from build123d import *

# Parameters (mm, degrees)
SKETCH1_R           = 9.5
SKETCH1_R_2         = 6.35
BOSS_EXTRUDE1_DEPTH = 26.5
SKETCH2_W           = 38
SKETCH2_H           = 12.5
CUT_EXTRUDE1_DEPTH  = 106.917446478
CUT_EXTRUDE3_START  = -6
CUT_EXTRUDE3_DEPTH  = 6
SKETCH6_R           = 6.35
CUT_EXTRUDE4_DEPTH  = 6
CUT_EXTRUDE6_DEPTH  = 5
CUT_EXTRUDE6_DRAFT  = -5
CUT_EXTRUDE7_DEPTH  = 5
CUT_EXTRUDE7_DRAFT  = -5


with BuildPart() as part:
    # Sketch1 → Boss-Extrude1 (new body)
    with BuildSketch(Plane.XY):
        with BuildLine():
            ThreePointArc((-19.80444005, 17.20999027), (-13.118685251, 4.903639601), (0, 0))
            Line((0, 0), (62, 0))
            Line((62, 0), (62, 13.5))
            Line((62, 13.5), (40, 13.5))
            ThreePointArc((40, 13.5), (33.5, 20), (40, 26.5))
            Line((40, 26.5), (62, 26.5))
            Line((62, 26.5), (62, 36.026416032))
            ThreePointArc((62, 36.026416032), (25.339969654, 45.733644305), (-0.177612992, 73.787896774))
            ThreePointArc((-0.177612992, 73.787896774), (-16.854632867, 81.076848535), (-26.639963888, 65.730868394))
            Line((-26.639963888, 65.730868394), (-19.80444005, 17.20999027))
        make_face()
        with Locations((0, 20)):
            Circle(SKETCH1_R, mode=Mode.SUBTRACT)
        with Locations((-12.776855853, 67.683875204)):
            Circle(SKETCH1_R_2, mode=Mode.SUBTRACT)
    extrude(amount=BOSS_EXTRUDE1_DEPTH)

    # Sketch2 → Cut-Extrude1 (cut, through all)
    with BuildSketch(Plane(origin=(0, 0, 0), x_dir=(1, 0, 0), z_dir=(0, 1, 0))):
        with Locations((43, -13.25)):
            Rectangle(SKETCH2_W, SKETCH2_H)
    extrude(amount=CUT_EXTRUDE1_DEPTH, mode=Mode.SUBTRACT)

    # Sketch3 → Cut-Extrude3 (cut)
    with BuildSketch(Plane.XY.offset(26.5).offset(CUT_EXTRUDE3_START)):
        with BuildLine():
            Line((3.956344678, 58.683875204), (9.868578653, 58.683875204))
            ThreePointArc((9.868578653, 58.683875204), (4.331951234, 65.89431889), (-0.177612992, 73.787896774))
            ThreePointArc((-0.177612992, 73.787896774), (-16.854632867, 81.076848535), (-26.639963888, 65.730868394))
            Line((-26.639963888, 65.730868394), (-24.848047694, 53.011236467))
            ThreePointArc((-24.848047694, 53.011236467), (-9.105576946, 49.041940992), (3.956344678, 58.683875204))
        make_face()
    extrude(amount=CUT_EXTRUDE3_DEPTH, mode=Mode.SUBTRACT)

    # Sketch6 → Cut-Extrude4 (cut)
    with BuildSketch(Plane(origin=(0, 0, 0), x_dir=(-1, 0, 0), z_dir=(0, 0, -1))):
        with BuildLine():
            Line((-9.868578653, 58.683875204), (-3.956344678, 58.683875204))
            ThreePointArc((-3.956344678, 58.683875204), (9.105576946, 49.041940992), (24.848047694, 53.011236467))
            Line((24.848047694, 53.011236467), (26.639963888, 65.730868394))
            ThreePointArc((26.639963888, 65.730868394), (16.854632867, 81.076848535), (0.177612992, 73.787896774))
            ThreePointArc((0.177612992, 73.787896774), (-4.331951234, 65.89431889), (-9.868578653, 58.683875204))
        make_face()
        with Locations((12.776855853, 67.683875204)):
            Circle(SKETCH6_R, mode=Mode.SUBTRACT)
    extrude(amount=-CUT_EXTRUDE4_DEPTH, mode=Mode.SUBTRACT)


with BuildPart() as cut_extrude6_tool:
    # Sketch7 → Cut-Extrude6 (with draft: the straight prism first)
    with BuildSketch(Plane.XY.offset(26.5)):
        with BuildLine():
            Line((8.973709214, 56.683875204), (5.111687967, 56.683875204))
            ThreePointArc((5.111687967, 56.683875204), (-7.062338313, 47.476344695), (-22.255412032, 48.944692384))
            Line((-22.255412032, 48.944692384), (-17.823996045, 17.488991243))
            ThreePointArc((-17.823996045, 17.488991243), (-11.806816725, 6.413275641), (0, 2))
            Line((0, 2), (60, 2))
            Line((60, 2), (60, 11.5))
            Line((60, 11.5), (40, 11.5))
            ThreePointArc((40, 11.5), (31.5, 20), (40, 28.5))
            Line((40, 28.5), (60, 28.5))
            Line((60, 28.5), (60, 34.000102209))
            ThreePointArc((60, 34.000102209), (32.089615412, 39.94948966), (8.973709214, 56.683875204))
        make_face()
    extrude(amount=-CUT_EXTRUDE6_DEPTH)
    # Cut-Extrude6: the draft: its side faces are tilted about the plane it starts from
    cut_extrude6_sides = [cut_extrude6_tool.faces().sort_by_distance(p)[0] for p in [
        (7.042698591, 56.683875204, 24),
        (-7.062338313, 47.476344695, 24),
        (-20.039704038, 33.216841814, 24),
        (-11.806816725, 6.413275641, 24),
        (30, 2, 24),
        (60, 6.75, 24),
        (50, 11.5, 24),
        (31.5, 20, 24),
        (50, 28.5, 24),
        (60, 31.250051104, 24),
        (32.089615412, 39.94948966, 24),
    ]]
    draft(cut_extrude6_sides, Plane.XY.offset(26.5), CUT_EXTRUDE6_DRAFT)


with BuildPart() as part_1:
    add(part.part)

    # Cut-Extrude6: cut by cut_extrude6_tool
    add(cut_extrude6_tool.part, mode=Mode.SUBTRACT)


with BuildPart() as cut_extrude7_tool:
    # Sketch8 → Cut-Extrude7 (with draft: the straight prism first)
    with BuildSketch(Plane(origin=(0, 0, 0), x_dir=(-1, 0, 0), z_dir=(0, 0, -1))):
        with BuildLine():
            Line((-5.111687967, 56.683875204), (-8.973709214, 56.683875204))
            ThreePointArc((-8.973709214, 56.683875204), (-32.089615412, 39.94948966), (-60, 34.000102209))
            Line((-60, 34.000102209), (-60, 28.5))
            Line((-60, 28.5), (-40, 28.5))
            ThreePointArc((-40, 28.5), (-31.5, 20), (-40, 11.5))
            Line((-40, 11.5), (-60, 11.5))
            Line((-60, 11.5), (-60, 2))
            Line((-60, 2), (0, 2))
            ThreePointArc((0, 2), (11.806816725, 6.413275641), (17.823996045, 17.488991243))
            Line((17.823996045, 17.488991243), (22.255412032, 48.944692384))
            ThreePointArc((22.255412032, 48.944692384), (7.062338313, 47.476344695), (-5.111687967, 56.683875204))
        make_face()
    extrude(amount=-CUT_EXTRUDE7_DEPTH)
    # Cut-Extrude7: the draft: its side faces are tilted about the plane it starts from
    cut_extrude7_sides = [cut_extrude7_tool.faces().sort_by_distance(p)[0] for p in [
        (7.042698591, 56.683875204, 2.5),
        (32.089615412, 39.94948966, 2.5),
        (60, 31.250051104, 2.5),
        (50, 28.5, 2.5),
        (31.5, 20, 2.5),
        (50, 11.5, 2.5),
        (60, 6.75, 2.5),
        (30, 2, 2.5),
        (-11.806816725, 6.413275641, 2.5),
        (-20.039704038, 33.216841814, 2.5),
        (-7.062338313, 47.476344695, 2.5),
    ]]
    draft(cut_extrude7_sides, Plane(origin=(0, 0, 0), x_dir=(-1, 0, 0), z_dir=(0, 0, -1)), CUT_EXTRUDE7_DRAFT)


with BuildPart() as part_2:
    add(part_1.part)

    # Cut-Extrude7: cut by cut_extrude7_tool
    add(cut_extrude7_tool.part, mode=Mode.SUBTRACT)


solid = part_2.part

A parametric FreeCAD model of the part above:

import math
import FreeCAD as App
import Part
import Sketcher
from FreeCAD import Vector
Q = App.Units.Quantity


def faces_at(feature, points):
    """Names of the faces that lie closest to the given points."""
    faces = feature.Shape.Faces
    near = lambda p: min(range(len(faces)), key=lambda i: faces[i].distToShape(Part.Vertex(*p))[0])
    return sorted({f"Face{near(p) + 1}" for p in points})

doc = App.newDocument("Part")
params = doc.addObject("Spreadsheet::Sheet", "Params")
for row, (alias, value) in enumerate([
    ("sketch1_diameter", "19 mm"),
    ("sketch1_radius", "20 mm"),
    ("sketch1_radius2", "67 mm"),
    ("sketch1_radius3", "14 mm"),
    ("sketch1_diameter2", "12.7 mm"),
    ("pad1_length", "26.5 mm"),
    ("sketch2_width", "38 mm"),
    ("sketch2_height", "12.5 mm"),
    ("sketch3_radius", "67 mm"),
    ("sketch3_radius2", "14 mm"),
    ("sketch3_radius3", "19 mm"),
    ("pocket2_length", "6 mm"),
    ("sketch4_radius", "19 mm"),
    ("sketch4_radius2", "14 mm"),
    ("sketch4_radius3", "67 mm"),
    ("sketch4_diameter", "12.7 mm"),
    ("pocket3_length", "6 mm"),
    ("sketch5_radius", "21 mm"),
    ("sketch5_radius2", "18 mm"),
    ("sketch5_radius3", "69 mm"),
    ("sketch5_radius4", "8.5 mm"),
    ("sketch5_width", "60 mm"),
    ("pad2_length", "5 mm"),
    ("draft_angle", "5 deg"),
    ("sketch6_radius", "69 mm"),
    ("sketch6_radius2", "18 mm"),
    ("sketch6_radius3", "21 mm"),
    ("sketch6_radius4", "8.5 mm"),
    ("sketch6_width", "20 mm"),
    ("pad3_length", "5 mm"),
    ("draft2_angle", "5 deg"),
], start=1):
    params.set(f"A{row}", alias)
    params.set(f"B{row}", "=" + value)
    params.setAlias(f"B{row}", alias)

body = doc.addObject("PartDesign::Body", "Body")

# Sketch on XY plane
sketch1 = doc.addObject("Sketcher::SketchObject", "Sketch")
body.addObject(sketch1)
sketch1.AttachmentSupport = (doc.XY_Plane, [""])
sketch1.MapMode = "FlatFace"
sketch1.addGeometry(Part.ArcOfCircle(Part.Circle(Vector(0, 20, 0), Vector(0, 0, 1), 20), math.radians(-172), math.radians(-90)), False)
sketch1.addGeometry(Part.LineSegment(Vector(0, 0, 0), Vector(62, 0, 0)), False)
sketch1.addGeometry(Part.LineSegment(Vector(62, 0, 0), Vector(62, 14, 0)), False)
sketch1.addGeometry(Part.LineSegment(Vector(62, 14, 0), Vector(40, 14, 0)), False)
sketch1.addGeometry(Part.ArcOfCircle(Part.Circle(Vector(40, 20, 0), Vector(0, 0, 1), 6), math.radians(90), math.radians(270)), False)
sketch1.addGeometry(Part.LineSegment(Vector(40, 26, 0), Vector(62, 26, 0)), False)
sketch1.addGeometry(Part.LineSegment(Vector(62, 26, 0), Vector(62, 36, 0)), False)
sketch1.addGeometry(Part.ArcOfCircle(Part.Circle(Vector(60, 103, 0), Vector(0, 0, 1), 67), math.radians(-154), math.radians(-88)), False)
sketch1.addGeometry(Part.ArcOfCircle(Part.Circle(Vector(-13, 68, 0), Vector(0, 0, 1), 14), math.radians(26), math.radians(188)), False)
sketch1.addGeometry(Part.LineSegment(Vector(-27, 66, 0), Vector(-20, 17, 0)), False)
sketch1.addGeometry(Part.Circle(Vector(0, 20, 0), Vector(0, 0, 1), 10), False)
sketch1.addGeometry(Part.Circle(Vector(-13, 68, 0), Vector(0, 0, 1), 6), False)
sketch1.addConstraint(Sketcher.Constraint("Tangent", 0, 2, 1, 1))
sketch1.addConstraint(Sketcher.Constraint("Coincident", 1, 2, 2, 1))
sketch1.addConstraint(Sketcher.Constraint("Coincident", 2, 2, 3, 1))
sketch1.addConstraint(Sketcher.Constraint("Tangent", 3, 2, 4, 2))
sketch1.addConstraint(Sketcher.Constraint("Tangent", 4, 1, 5, 1))
sketch1.addConstraint(Sketcher.Constraint("Coincident", 5, 2, 6, 1))
sketch1.addConstraint(Sketcher.Constraint("Coincident", 6, 2, 7, 2))
sketch1.addConstraint(Sketcher.Constraint("Tangent", 7, 1, 8, 1))
sketch1.addConstraint(Sketcher.Constraint("Tangent", 8, 2, 9, 1))
sketch1.addConstraint(Sketcher.Constraint("Tangent", 9, 2, 0, 1))
sketch1.addConstraint(Sketcher.Constraint("Horizontal", 1))
sketch1.addConstraint(Sketcher.Constraint("Vertical", 2))
sketch1.addConstraint(Sketcher.Constraint("Horizontal", 3))
sketch1.addConstraint(Sketcher.Constraint("Horizontal", 5))
sketch1.addConstraint(Sketcher.Constraint("Vertical", 6))
sketch1.addConstraint(Sketcher.Constraint("Coincident", 0, 2, -1, 1))
sketch1.addConstraint(Sketcher.Constraint("Coincident", 10, 3, 0, 3))
sketch1.addConstraint(Sketcher.Constraint("Coincident", 11, 3, 8, 3))
sketch1.addConstraint(Sketcher.Constraint("Horizontal", 0, 3, 4, 3))
sketch1.addConstraint(Sketcher.Constraint("Vertical", 2, 2, 5, 2))
sketch1.addConstraint(Sketcher.Constraint("Diameter", 10, Q("19 mm")))
sketch1.addConstraint(Sketcher.Constraint("Radius", 0, Q("20 mm")))
sketch1.addConstraint(Sketcher.Constraint("Radius", 7, Q("67 mm")))
sketch1.addConstraint(Sketcher.Constraint("Radius", 8, Q("14 mm")))
sketch1.addConstraint(Sketcher.Constraint("Diameter", 11, Q("12.7 mm")))
sketch1.addConstraint(Sketcher.Constraint("Radius", 4, Q("6.5 mm")))
sketch1.addConstraint(Sketcher.Constraint("DistanceX", 1, 1, 1, 2, Q("62 mm")))
sketch1.addConstraint(Sketcher.Constraint("DistanceX", 3, 2, 3, 1, Q("22 mm")))
sketch1.addConstraint(Sketcher.Constraint("Distance", 9, Q("49 mm")))
sketch1.addConstraint(Sketcher.Constraint("DistanceY", -1, 1, 7, 3, Q("103 mm")))
sketch1.addConstraint(Sketcher.Constraint("DistanceY", 6, 1, 6, 2, Q("9.526416 mm")))
sketch1.setExpression("Constraints[20]", "Params.sketch1_diameter")
sketch1.setExpression("Constraints[21]", "Params.sketch1_radius")
sketch1.setExpression("Constraints[22]", "Params.sketch1_radius2")
sketch1.setExpression("Constraints[23]", "Params.sketch1_radius3")
sketch1.setExpression("Constraints[24]", "Params.sketch1_diameter2")
pad1 = doc.addObject("PartDesign::Pad", "Pad")
body.addObject(pad1)
pad1.Profile = sketch1
pad1.setExpression("Length", "Params.pad1_length")

# Sketch on XZ plane
sketch2 = doc.addObject("Sketcher::SketchObject", "Sketch001")
body.addObject(sketch2)
sketch2.AttachmentSupport = (doc.XZ_Plane, [""])
sketch2.MapMode = "FlatFace"
sketch2.addGeometry(Part.LineSegment(Vector(24, 7, 0), Vector(24, 20, 0)), False)
sketch2.addGeometry(Part.LineSegment(Vector(24, 20, 0), Vector(62, 20, 0)), False)
sketch2.addGeometry(Part.LineSegment(Vector(62, 20, 0), Vector(62, 7, 0)), False)
sketch2.addGeometry(Part.LineSegment(Vector(62, 7, 0), Vector(24, 7, 0)), False)
sketch2.addConstraint(Sketcher.Constraint("Coincident", 0, 2, 1, 1))
sketch2.addConstraint(Sketcher.Constraint("Coincident", 1, 2, 2, 1))
sketch2.addConstraint(Sketcher.Constraint("Coincident", 2, 2, 3, 1))
sketch2.addConstraint(Sketcher.Constraint("Coincident", 3, 2, 0, 1))
sketch2.addConstraint(Sketcher.Constraint("Vertical", 0))
sketch2.addConstraint(Sketcher.Constraint("Horizontal", 1))
sketch2.addConstraint(Sketcher.Constraint("Vertical", 2))
sketch2.addConstraint(Sketcher.Constraint("Horizontal", 3))
sketch2.addConstraint(Sketcher.Constraint("DistanceX", 1, 1, 1, 2, Q("38 mm")))
sketch2.addConstraint(Sketcher.Constraint("DistanceY", 0, 1, 0, 2, Q("12.5 mm")))
sketch2.addConstraint(Sketcher.Constraint("DistanceX", -1, 1, 0, 2, Q("24 mm")))
sketch2.addConstraint(Sketcher.Constraint("DistanceY", -1, 1, 2, 2, Q("7 mm")))
sketch2.setExpression("Constraints[8]", "Params.sketch2_width")
sketch2.setExpression("Constraints[9]", "Params.sketch2_height")
pocket1 = doc.addObject("PartDesign::Pocket", "Pocket")
body.addObject(pocket1)
pocket1.Profile = sketch2
pocket1.Type = "ThroughAll"

# Sketch on XY plane
sketch3 = doc.addObject("Sketcher::SketchObject", "Sketch002")
body.addObject(sketch3)
sketch3.AttachmentSupport = (doc.XY_Plane, [""])
sketch3.MapMode = "FlatFace"
sketch3.AttachmentOffset = App.Placement(Vector(0, 0, 20.5), App.Rotation())
sketch3.addGeometry(Part.LineSegment(Vector(4, 59, 0), Vector(10, 59, 0)), False)
sketch3.addGeometry(Part.ArcOfCircle(Part.Circle(Vector(60, 103, 0), Vector(0, 0, 1), 67), math.radians(-154.15), math.radians(-138.59)), False)
sketch3.addGeometry(Part.ArcOfCircle(Part.Circle(Vector(-13, 68, 0), Vector(0, 0, 1), 14), math.radians(26), math.radians(188)), False)
sketch3.addGeometry(Part.LineSegment(Vector(-27, 66, 0), Vector(-25, 53, 0)), False)
sketch3.addGeometry(Part.ArcOfCircle(Part.Circle(Vector(-13, 68, 0), Vector(0, 0, 1), 19), math.radians(-129), math.radians(-28)), False)
sketch3.addConstraint(Sketcher.Constraint("Coincident", 0, 2, 1, 2))
sketch3.addConstraint(Sketcher.Constraint("Tangent", 1, 1, 2, 1))
sketch3.addConstraint(Sketcher.Constraint("Tangent", 2, 2, 3, 1))
sketch3.addConstraint(Sketcher.Constraint("Coincident", 3, 2, 4, 1))
sketch3.addConstraint(Sketcher.Constraint("Coincident", 4, 2, 0, 1))
sketch3.addConstraint(Sketcher.Constraint("Horizontal", 0))
sketch3.addConstraint(Sketcher.Constraint("Coincident", 4, 3, 2, 3))
sketch3.addConstraint(Sketcher.Constraint("Radius", 1, Q("67 mm")))
sketch3.addConstraint(Sketcher.Constraint("Radius", 2, Q("14 mm")))
sketch3.addConstraint(Sketcher.Constraint("Radius", 4, Q("19 mm")))
sketch3.addConstraint(Sketcher.Constraint("DistanceY", -1, 1, 1, 3, Q("103 mm")))
sketch3.addConstraint(Sketcher.Constraint("DistanceY", 0, 2, 4, 3, Q("9 mm")))
sketch3.addConstraint(Sketcher.Constraint("DistanceX", 0, 1, 0, 2, Q("5.912234 mm")))
sketch3.addConstraint(Sketcher.Constraint("DistanceX", -1, 1, 0, 2, Q("9.868579 mm")))
sketch3.addConstraint(Sketcher.Constraint("DistanceY", -1, 1, 2, 2, Q("65.730868 mm")))
sketch3.setExpression("Constraints[7]", "Params.sketch3_radius")
sketch3.setExpression("Constraints[8]", "Params.sketch3_radius2")
sketch3.setExpression("Constraints[9]", "Params.sketch3_radius3")
pocket2 = doc.addObject("PartDesign::Pocket", "Pocket001")
body.addObject(pocket2)
pocket2.Profile = sketch3
pocket2.setExpression("Length", "Params.pocket2_length")
pocket2.Reversed = True

# Sketch on XY plane
sketch4 = doc.addObject("Sketcher::SketchObject", "Sketch003")
body.addObject(sketch4)
sketch4.AttachmentSupport = (doc.XY_Plane, [""])
sketch4.MapMode = "FlatFace"
sketch4.addGeometry(Part.LineSegment(Vector(10, 59, 0), Vector(4, 59, 0)), False)
sketch4.addGeometry(Part.ArcOfCircle(Part.Circle(Vector(-13, 68, 0), Vector(0, 0, 1), 19), math.radians(-129), math.radians(-28)), False)
sketch4.addGeometry(Part.LineSegment(Vector(-25, 53, 0), Vector(-27, 66, 0)), False)
sketch4.addGeometry(Part.ArcOfCircle(Part.Circle(Vector(-13, 68, 0), Vector(0, 0, 1), 14), math.radians(26), math.radians(188)), False)
sketch4.addGeometry(Part.ArcOfCircle(Part.Circle(Vector(60, 103, 0), Vector(0, 0, 1), 67), math.radians(-154.15), math.radians(-138.59)), False)
sketch4.addGeometry(Part.Circle(Vector(-13, 68, 0), Vector(0, 0, 1), 6), False)
sketch4.addConstraint(Sketcher.Constraint("Coincident", 0, 2, 1, 2))
sketch4.addConstraint(Sketcher.Constraint("Coincident", 1, 1, 2, 1))
sketch4.addConstraint(Sketcher.Constraint("Tangent", 2, 2, 3, 2))
sketch4.addConstraint(Sketcher.Constraint("Tangent", 3, 1, 4, 1))
sketch4.addConstraint(Sketcher.Constraint("Coincident", 4, 2, 0, 1))
sketch4.addConstraint(Sketcher.Constraint("Horizontal", 0))
sketch4.addConstraint(Sketcher.Constraint("Coincident", 3, 3, 1, 3))
sketch4.addConstraint(Sketcher.Constraint("Coincident", 5, 3, 1, 3))
sketch4.addConstraint(Sketcher.Constraint("Radius", 1, Q("19 mm")))
sketch4.addConstraint(Sketcher.Constraint("Radius", 3, Q("14 mm")))
sketch4.addConstraint(Sketcher.Constraint("Radius", 4, Q("67 mm")))
sketch4.addConstraint(Sketcher.Constraint("Diameter", 5, Q("12.7 mm")))
sketch4.addConstraint(Sketcher.Constraint("DistanceY", -1, 1, 4, 3, Q("103 mm")))
sketch4.addConstraint(Sketcher.Constraint("DistanceY", 0, 2, 1, 3, Q("9 mm")))
sketch4.addConstraint(Sketcher.Constraint("DistanceX", 0, 2, 0, 1, Q("5.912234 mm")))
sketch4.addConstraint(Sketcher.Constraint("DistanceY", -1, 1, 2, 2, Q("65.730868 mm")))
sketch4.addConstraint(Sketcher.Constraint("DistanceX", -1, 1, 4, 2, Q("9.868579 mm")))
sketch4.setExpression("Constraints[8]", "Params.sketch4_radius")
sketch4.setExpression("Constraints[9]", "Params.sketch4_radius2")
sketch4.setExpression("Constraints[10]", "Params.sketch4_radius3")
sketch4.setExpression("Constraints[11]", "Params.sketch4_diameter")
pocket3 = doc.addObject("PartDesign::Pocket", "Pocket002")
body.addObject(pocket3)
pocket3.Profile = sketch4
pocket3.setExpression("Length", "Params.pocket3_length")
pocket3.Reversed = True
body2 = doc.addObject("PartDesign::Body", "Body001")

# Sketch on XY plane
sketch5 = doc.addObject("Sketcher::SketchObject", "Sketch004")
body2.addObject(sketch5)
sketch5.AttachmentSupport = (doc.getObject("XY_Plane001"), [""])
sketch5.MapMode = "FlatFace"
sketch5.AttachmentOffset = App.Placement(Vector(0, 0, 26.5), App.Rotation())
sketch5.addGeometry(Part.LineSegment(Vector(9, 56.7, 0), Vector(5.1, 56.7, 0)), False)
sketch5.addGeometry(Part.ArcOfCircle(Part.Circle(Vector(-12.8, 67.7, 0), Vector(0, 0, 1), 21), math.radians(-117), math.radians(-32)), False)
sketch5.addGeometry(Part.LineSegment(Vector(-22.3, 48.9, 0), Vector(-17.8, 17.5, 0)), False)
sketch5.addGeometry(Part.ArcOfCircle(Part.Circle(Vector(0, 20, 0), Vector(0, 0, 1), 18), math.radians(-172), math.radians(-90)), False)
sketch5.addGeometry(Part.LineSegment(Vector(0, 2, 0), Vector(60, 2, 0)), False)
sketch5.addGeometry(Part.LineSegment(Vector(60, 2, 0), Vector(60, 11.5, 0)), False)
sketch5.addGeometry(Part.LineSegment(Vector(60, 11.5, 0), Vector(40, 11.5, 0)), False)
sketch5.addGeometry(Part.ArcOfCircle(Part.Circle(Vector(40, 20, 0), Vector(0, 0, 1), 8.5), math.radians(90), math.radians(270)), False)
sketch5.addGeometry(Part.LineSegment(Vector(40, 28.5, 0), Vector(60, 28.5, 0)), False)
sketch5.addGeometry(Part.LineSegment(Vector(60, 28.5, 0), Vector(60, 34, 0)), False)
sketch5.addGeometry(Part.ArcOfCircle(Part.Circle(Vector(60.1, 103, 0), Vector(0, 0, 1), 69), math.radians(-138), math.radians(-90)), False)
sketch5.addConstraint(Sketcher.Constraint("Coincident", 0, 2, 1, 2))
sketch5.addConstraint(Sketcher.Constraint("Coincident", 1, 1, 2, 1))
sketch5.addConstraint(Sketcher.Constraint("Tangent", 2, 2, 3, 1))
sketch5.addConstraint(Sketcher.Constraint("Tangent", 3, 2, 4, 1))
sketch5.addConstraint(Sketcher.Constraint("Coincident", 4, 2, 5, 1))
sketch5.addConstraint(Sketcher.Constraint("Coincident", 5, 2, 6, 1))
sketch5.addConstraint(Sketcher.Constraint("Tangent", 6, 2, 7, 2))
sketch5.addConstraint(Sketcher.Constraint("Tangent", 7, 1, 8, 1))
sketch5.addConstraint(Sketcher.Constraint("Coincident", 8, 2, 9, 1))
sketch5.addConstraint(Sketcher.Constraint("Coincident", 9, 2, 10, 2))
sketch5.addConstraint(Sketcher.Constraint("Coincident", 10, 1, 0, 1))
sketch5.addConstraint(Sketcher.Constraint("Horizontal", 0))
sketch5.addConstraint(Sketcher.Constraint("Horizontal", 4))
sketch5.addConstraint(Sketcher.Constraint("Vertical", 5))
sketch5.addConstraint(Sketcher.Constraint("Horizontal", 6))
sketch5.addConstraint(Sketcher.Constraint("Horizontal", 8))
sketch5.addConstraint(Sketcher.Constraint("Vertical", 9))
sketch5.addConstraint(Sketcher.Constraint("PointOnObject", 3, 3, -2))
sketch5.addConstraint(Sketcher.Constraint("Horizontal", 3, 3, 7, 3))
sketch5.addConstraint(Sketcher.Constraint("Vertical", 5, 2, 8, 2))
sketch5.addConstraint(Sketcher.Constraint("Radius", 1, Q("21 mm")))
sketch5.addConstraint(Sketcher.Constraint("Radius", 3, Q("18 mm")))
sketch5.addConstraint(Sketcher.Constraint("Radius", 10, Q("69 mm")))
sketch5.addConstraint(Sketcher.Constraint("Radius", 7, Q("8.5 mm")))
sketch5.addConstraint(Sketcher.Constraint("DistanceX", 4, 1, 4, 2, Q("60 mm")))
sketch5.addConstraint(Sketcher.Constraint("DistanceX", 6, 2, 6, 1, Q("20 mm")))
sketch5.addConstraint(Sketcher.Constraint("DistanceY", -1, 1, 3, 3, Q("20 mm")))
sketch5.addConstraint(Sketcher.Constraint("DistanceY", -1, 1, 10, 3, Q("103 mm")))
sketch5.addConstraint(Sketcher.Constraint("DistanceY", 0, 2, 1, 3, Q("11 mm")))
sketch5.addConstraint(Sketcher.Constraint("DistanceX", 0, 2, 0, 1, Q("3.862021 mm")))
sketch5.addConstraint(Sketcher.Constraint("DistanceX", 1, 1, 0, 2, Q("27.3671 mm")))
sketch5.addConstraint(Sketcher.Constraint("DistanceY", 2, 2, 1, 1, Q("31.455701 mm")))
sketch5.addConstraint(Sketcher.Constraint("DistanceY", -1, 1, 2, 2, Q("17.488991 mm")))
sketch5.setExpression("Constraints[20]", "Params.sketch5_radius")
sketch5.setExpression("Constraints[21]", "Params.sketch5_radius2")
sketch5.setExpression("Constraints[22]", "Params.sketch5_radius3")
sketch5.setExpression("Constraints[23]", "Params.sketch5_radius4")
sketch5.setExpression("Constraints[24]", "Params.sketch5_width")
pad2 = doc.addObject("PartDesign::Pad", "Pad001")
body2.addObject(pad2)
pad2.Profile = sketch5
pad2.setExpression("Length", "Params.pad2_length")
pad2.Reversed = True
doc.recompute()

datumplane = doc.addObject("PartDesign::Plane", "DatumPlane")
body2.addObject(datumplane)
datumplane.AttachmentSupport = (doc.getObject("XY_Plane001"), [""])
datumplane.MapMode = "FlatFace"
datumplane.AttachmentOffset = App.Placement(Vector(0, 0, 26.5), App.Rotation())
draft = doc.addObject("PartDesign::Draft", "Draft")
body2.addObject(draft)
draft.Base = (pad2, faces_at(pad2, [
    (7.043, 56.684, 24),
    (-7.062, 47.476, 24),
    (-20.04, 33.217, 24),
    (-11.807, 6.413, 24),
    (30, 2, 24),
    (60, 6.75, 24),
    (50, 11.5, 24),
    (31.5, 20, 24),
    (50, 28.5, 24),
    (60, 31.25, 24),
    (32.09, 39.949, 24),
]))
draft.NeutralPlane = (datumplane, [""])
draft.setExpression("Angle", "Params.draft_angle")
draft.Reversed = True
doc.recompute()

boolean = doc.addObject("PartDesign::Boolean", "Boolean")
body.addObject(boolean)
boolean.Type = "Cut"
boolean.addObjects([body2])
body3 = doc.addObject("PartDesign::Body", "Body002")

# Sketch on XY plane
sketch6 = doc.addObject("Sketcher::SketchObject", "Sketch005")
body3.addObject(sketch6)
sketch6.AttachmentSupport = (doc.getObject("XY_Plane002"), [""])
sketch6.MapMode = "FlatFace"
sketch6.addGeometry(Part.LineSegment(Vector(5.1, 56.7, 0), Vector(9, 56.7, 0)), False)
sketch6.addGeometry(Part.ArcOfCircle(Part.Circle(Vector(60.1, 103, 0), Vector(0, 0, 1), 69), math.radians(-138), math.radians(-90)), False)
sketch6.addGeometry(Part.LineSegment(Vector(60, 34, 0), Vector(60, 28.5, 0)), False)
sketch6.addGeometry(Part.LineSegment(Vector(60, 28.5, 0), Vector(40, 28.5, 0)), False)
sketch6.addGeometry(Part.ArcOfCircle(Part.Circle(Vector(40, 20, 0), Vector(0, 0, 1), 8.5), math.radians(90), math.radians(270)), False)
sketch6.addGeometry(Part.LineSegment(Vector(40, 11.5, 0), Vector(60, 11.5, 0)), False)
sketch6.addGeometry(Part.LineSegment(Vector(60, 11.5, 0), Vector(60, 2, 0)), False)
sketch6.addGeometry(Part.LineSegment(Vector(60, 2, 0), Vector(0, 2, 0)), False)
sketch6.addGeometry(Part.ArcOfCircle(Part.Circle(Vector(0, 20, 0), Vector(0, 0, 1), 18), math.radians(-172), math.radians(-90)), False)
sketch6.addGeometry(Part.LineSegment(Vector(-17.8, 17.5, 0), Vector(-22.3, 48.9, 0)), False)
sketch6.addGeometry(Part.ArcOfCircle(Part.Circle(Vector(-12.8, 67.7, 0), Vector(0, 0, 1), 21), math.radians(-117), math.radians(-32)), False)
sketch6.addConstraint(Sketcher.Constraint("Coincident", 0, 2, 1, 1))
sketch6.addConstraint(Sketcher.Constraint("Coincident", 1, 2, 2, 1))
sketch6.addConstraint(Sketcher.Constraint("Coincident", 2, 2, 3, 1))
sketch6.addConstraint(Sketcher.Constraint("Tangent", 3, 2, 4, 1))
sketch6.addConstraint(Sketcher.Constraint("Tangent", 4, 2, 5, 1))
sketch6.addConstraint(Sketcher.Constraint("Coincident", 5, 2, 6, 1))
sketch6.addConstraint(Sketcher.Constraint("Coincident", 6, 2, 7, 1))
sketch6.addConstraint(Sketcher.Constraint("Tangent", 7, 2, 8, 2))
sketch6.addConstraint(Sketcher.Constraint("Tangent", 8, 1, 9, 1))
sketch6.addConstraint(Sketcher.Constraint("Coincident", 9, 2, 10, 1))
sketch6.addConstraint(Sketcher.Constraint("Coincident", 10, 2, 0, 1))
sketch6.addConstraint(Sketcher.Constraint("Horizontal", 0))
sketch6.addConstraint(Sketcher.Constraint("Vertical", 2))
sketch6.addConstraint(Sketcher.Constraint("Horizontal", 3))
sketch6.addConstraint(Sketcher.Constraint("Horizontal", 5))
sketch6.addConstraint(Sketcher.Constraint("Vertical", 6))
sketch6.addConstraint(Sketcher.Constraint("Horizontal", 7))
sketch6.addConstraint(Sketcher.Constraint("PointOnObject", 8, 3, -2))
sketch6.addConstraint(Sketcher.Constraint("Horizontal", 4, 3, 8, 3))
sketch6.addConstraint(Sketcher.Constraint("Vertical", 2, 2, 5, 2))
sketch6.addConstraint(Sketcher.Constraint("Radius", 1, Q("69 mm")))
sketch6.addConstraint(Sketcher.Constraint("Radius", 8, Q("18 mm")))
sketch6.addConstraint(Sketcher.Constraint("Radius", 10, Q("21 mm")))
sketch6.addConstraint(Sketcher.Constraint("Radius", 4, Q("8.5 mm")))
sketch6.addConstraint(Sketcher.Constraint("DistanceX", 3, 2, 3, 1, Q("20 mm")))
sketch6.addConstraint(Sketcher.Constraint("DistanceX", 7, 2, 7, 1, Q("60 mm")))
sketch6.addConstraint(Sketcher.Constraint("DistanceY", -1, 1, 1, 3, Q("103 mm")))
sketch6.addConstraint(Sketcher.Constraint("DistanceY", -1, 1, 4, 3, Q("20 mm")))
sketch6.addConstraint(Sketcher.Constraint("DistanceY", 0, 2, 10, 3, Q("11 mm")))
sketch6.addConstraint(Sketcher.Constraint("DistanceX", 0, 1, 0, 2, Q("3.862021 mm")))
sketch6.addConstraint(Sketcher.Constraint("DistanceY", 8, 1, 9, 2, Q("31.455701 mm")))
sketch6.addConstraint(Sketcher.Constraint("DistanceX", 9, 2, 10, 2, Q("27.3671 mm")))
sketch6.addConstraint(Sketcher.Constraint("DistanceX", -1, 1, 0, 2, Q("8.973709 mm")))
sketch6.setExpression("Constraints[20]", "Params.sketch6_radius")
sketch6.setExpression("Constraints[21]", "Params.sketch6_radius2")
sketch6.setExpression("Constraints[22]", "Params.sketch6_radius3")
sketch6.setExpression("Constraints[23]", "Params.sketch6_radius4")
sketch6.setExpression("Constraints[24]", "Params.sketch6_width")
pad3 = doc.addObject("PartDesign::Pad", "Pad002")
body3.addObject(pad3)
pad3.Profile = sketch6
pad3.setExpression("Length", "Params.pad3_length")
doc.recompute()

draft2 = doc.addObject("PartDesign::Draft", "Draft001")
body3.addObject(draft2)
draft2.Base = (pad3, faces_at(pad3, [
    (7.043, 56.684, 2.5),
    (32.09, 39.949, 2.5),
    (60, 31.25, 2.5),
    (50, 28.5, 2.5),
    (31.5, 20, 2.5),
    (50, 11.5, 2.5),
    (60, 6.75, 2.5),
    (30, 2, 2.5),
    (-11.807, 6.413, 2.5),
    (-20.04, 33.217, 2.5),
    (-7.062, 47.476, 2.5),
]))
draft2.NeutralPlane = (doc.getObject("XY_Plane002"), [""])
draft2.setExpression("Angle", "Params.draft2_angle")
draft2.Reversed = False
doc.recompute()

boolean2 = doc.addObject("PartDesign::Boolean", "Boolean001")
body.addObject(boolean2)
boolean2.Type = "Cut"
boolean2.addObjects([body3])

doc.recompute()
